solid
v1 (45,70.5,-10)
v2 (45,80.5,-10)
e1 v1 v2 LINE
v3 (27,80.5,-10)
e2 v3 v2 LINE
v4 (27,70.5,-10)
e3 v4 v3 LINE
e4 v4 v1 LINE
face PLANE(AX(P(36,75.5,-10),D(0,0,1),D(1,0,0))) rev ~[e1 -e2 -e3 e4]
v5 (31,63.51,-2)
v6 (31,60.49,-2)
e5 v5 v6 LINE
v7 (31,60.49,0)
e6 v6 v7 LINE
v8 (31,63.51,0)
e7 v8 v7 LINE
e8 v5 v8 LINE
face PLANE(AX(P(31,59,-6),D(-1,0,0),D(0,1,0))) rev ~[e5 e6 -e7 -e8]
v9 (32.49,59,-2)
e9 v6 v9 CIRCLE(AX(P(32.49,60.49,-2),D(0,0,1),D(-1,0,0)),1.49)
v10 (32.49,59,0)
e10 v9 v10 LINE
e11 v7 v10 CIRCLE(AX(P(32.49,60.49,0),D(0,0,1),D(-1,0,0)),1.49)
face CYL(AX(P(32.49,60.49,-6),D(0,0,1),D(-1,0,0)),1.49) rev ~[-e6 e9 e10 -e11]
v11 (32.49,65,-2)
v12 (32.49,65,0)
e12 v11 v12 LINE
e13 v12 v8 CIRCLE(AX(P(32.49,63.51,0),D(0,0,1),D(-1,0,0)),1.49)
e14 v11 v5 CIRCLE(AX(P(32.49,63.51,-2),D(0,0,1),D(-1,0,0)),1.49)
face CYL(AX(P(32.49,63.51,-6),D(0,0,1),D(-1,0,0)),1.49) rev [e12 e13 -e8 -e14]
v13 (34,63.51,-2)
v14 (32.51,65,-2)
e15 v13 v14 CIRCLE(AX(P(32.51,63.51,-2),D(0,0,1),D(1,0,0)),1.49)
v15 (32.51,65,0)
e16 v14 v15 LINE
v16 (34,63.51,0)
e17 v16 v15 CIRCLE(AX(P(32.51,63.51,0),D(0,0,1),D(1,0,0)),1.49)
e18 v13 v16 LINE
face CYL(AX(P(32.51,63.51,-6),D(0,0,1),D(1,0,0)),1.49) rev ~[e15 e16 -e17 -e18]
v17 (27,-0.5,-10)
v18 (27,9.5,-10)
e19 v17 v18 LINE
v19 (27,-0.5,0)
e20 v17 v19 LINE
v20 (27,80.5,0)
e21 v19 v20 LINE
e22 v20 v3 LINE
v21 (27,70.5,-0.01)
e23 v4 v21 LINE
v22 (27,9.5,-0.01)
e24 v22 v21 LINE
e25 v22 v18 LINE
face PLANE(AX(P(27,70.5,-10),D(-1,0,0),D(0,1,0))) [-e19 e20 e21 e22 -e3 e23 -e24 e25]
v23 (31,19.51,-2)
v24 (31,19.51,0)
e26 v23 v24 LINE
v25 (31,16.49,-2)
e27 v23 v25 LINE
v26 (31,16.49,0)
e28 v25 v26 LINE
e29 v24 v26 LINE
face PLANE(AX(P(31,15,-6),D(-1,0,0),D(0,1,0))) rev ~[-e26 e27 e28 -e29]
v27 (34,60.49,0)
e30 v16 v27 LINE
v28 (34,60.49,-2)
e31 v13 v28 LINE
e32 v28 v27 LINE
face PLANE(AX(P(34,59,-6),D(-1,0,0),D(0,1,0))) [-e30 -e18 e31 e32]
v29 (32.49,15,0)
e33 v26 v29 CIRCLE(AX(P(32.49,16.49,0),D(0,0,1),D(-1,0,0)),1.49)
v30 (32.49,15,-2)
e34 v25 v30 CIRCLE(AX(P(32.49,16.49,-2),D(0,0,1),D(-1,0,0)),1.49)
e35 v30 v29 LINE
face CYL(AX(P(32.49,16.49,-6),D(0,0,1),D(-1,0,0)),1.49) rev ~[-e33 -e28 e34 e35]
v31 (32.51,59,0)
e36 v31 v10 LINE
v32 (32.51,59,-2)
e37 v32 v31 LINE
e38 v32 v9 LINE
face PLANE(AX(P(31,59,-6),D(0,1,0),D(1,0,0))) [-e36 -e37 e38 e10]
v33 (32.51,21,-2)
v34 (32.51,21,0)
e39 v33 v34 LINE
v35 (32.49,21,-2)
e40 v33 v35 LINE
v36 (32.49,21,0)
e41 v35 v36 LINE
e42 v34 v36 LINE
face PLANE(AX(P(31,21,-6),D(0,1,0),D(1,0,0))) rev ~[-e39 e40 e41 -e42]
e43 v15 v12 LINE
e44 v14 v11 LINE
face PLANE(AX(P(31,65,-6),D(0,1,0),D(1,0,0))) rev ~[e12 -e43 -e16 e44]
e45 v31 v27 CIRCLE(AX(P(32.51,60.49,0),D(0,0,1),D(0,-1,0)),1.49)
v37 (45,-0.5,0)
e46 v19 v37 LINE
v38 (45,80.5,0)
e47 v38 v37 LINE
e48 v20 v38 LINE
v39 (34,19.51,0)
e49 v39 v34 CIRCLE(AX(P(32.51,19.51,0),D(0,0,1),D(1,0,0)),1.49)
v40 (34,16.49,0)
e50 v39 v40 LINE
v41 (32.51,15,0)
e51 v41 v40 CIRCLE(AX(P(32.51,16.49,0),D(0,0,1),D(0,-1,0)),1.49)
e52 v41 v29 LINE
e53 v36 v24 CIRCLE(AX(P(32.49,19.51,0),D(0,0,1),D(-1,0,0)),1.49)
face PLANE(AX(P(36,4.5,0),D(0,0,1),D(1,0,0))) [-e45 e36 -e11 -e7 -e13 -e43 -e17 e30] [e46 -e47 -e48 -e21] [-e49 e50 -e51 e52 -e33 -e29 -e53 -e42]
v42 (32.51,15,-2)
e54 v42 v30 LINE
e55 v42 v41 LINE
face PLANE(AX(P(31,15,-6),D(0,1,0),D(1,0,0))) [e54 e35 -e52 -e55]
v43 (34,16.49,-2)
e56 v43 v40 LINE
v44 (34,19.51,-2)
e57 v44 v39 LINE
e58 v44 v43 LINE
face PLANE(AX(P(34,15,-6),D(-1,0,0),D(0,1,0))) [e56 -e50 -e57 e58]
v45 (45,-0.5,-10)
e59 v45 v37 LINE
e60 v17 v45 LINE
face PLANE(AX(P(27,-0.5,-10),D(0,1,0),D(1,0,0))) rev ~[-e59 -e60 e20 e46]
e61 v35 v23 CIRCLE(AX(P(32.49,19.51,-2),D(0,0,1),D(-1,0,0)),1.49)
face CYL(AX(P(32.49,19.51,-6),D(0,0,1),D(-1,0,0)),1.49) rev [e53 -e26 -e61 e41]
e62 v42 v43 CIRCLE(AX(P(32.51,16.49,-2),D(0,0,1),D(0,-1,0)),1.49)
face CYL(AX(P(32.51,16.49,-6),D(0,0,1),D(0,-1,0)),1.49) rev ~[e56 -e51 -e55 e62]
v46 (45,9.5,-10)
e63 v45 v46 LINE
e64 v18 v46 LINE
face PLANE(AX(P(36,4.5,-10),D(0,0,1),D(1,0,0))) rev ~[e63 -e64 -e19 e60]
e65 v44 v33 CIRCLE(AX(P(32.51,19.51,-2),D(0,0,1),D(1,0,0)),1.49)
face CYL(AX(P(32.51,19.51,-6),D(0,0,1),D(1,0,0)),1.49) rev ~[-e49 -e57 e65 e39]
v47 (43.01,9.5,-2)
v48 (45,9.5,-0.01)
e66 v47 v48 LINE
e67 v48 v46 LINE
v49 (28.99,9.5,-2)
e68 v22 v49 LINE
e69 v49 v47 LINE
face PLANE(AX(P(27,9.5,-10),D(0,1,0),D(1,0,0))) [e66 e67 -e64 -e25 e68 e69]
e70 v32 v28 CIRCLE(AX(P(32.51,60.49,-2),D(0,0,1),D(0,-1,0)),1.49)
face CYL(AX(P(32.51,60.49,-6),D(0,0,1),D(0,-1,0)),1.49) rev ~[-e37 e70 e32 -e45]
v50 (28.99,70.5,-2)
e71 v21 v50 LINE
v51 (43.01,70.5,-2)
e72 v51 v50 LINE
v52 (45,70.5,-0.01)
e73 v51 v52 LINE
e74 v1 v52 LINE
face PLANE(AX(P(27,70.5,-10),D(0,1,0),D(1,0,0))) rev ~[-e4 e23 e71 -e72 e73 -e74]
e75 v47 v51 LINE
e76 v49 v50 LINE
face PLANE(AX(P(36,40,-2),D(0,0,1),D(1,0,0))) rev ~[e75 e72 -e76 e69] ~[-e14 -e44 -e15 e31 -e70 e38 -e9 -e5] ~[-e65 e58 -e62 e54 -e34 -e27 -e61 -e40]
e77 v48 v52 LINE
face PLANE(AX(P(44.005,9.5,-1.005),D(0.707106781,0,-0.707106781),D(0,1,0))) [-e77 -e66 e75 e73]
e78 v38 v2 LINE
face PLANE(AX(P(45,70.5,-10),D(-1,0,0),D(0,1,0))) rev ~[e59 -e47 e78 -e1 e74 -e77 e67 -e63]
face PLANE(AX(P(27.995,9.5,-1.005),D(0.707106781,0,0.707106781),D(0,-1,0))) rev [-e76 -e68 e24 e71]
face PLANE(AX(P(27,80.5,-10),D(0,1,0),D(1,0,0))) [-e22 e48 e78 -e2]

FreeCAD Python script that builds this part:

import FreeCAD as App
import Part
import Sketcher

V = App.Vector
Q = App.Units.Quantity


def edges_at(feature, points):
    """Names of the edges that pass closest to the given points."""
    edges = feature.Shape.Edges
    near = lambda p: min(range(len(edges)), key=lambda i: edges[i].distToShape(Part.Vertex(*p))[0])
    return sorted({f"Edge{near(p) + 1}" for p in points})

doc = App.newDocument("Part")
body = doc.addObject("PartDesign::Body", "Body")

# Sketch on XY plane
sketch1 = body.newObject("Sketcher::SketchObject", "Sketch")
sketch1.AttachmentSupport = (doc.getObject("XY_Plane"), [""])
sketch1.MapMode = "FlatFace"
sketch1.addGeometry([
    Part.LineSegment(V(0, 6, 0), V(0, 0, 0)),
    Part.LineSegment(V(0, 0, 0), V(3, 0, 0)),
    Part.LineSegment(V(3, 0, 0), V(3, 6, 0)),
    Part.LineSegment(V(3, 6, 0), V(0, 6, 0)),
], False)
sketch1.addConstraint([
    Sketcher.Constraint("Coincident", 0, 2, 1, 1),
    Sketcher.Constraint("Coincident", 1, 2, 2, 1),
    Sketcher.Constraint("Coincident", 2, 2, 3, 1),
    Sketcher.Constraint("Coincident", 3, 2, 0, 1),
    Sketcher.Constraint("Vertical", 0),
    Sketcher.Constraint("Horizontal", 1),
    Sketcher.Constraint("Vertical", 2),
    Sketcher.Constraint("Horizontal", 3),
    Sketcher.Constraint("Coincident", 0, 2, -1, 1),
    Sketcher.Constraint("DistanceX", 1, 1, 1, 2, Q("3 mm")),
    Sketcher.Constraint("DistanceY", 0, 2, 0, 1, Q("6 mm")),
])
pad1 = body.newObject("PartDesign::Pad", "Pad")
pad1.Profile = sketch1
pad1.Length = 10
doc.recompute()

fillet = body.newObject("PartDesign::Fillet", "Fillet")
fillet.Base = (pad1, edges_at(pad1, [
    (0, 0, 5),
    (0, 6, 5),
    (3, 0, 5),
    (3, 6, 5),
]))
fillet.Radius = 1.49
body2 = doc.addObject("PartDesign::Body", "Body001")
doc.recompute()

body.Placement = App.Placement(V(31, 59.5, -6), App.Rotation(V(0, 0, 1), 0))
boolean = body2.newObject("PartDesign::Boolean", "Boolean")
boolean.Type = "Fuse"
boolean.addObjects([body])
body3 = doc.addObject("PartDesign::Body", "Body002")

# Sketch on XY plane
sketch2 = body3.newObject("Sketcher::SketchObject", "Sketch001")
sketch2.AttachmentSupport = (doc.getObject("XY_Plane002"), [""])
sketch2.MapMode = "FlatFace"
sketch2.addGeometry([
    Part.LineSegment(V(0, 6, 0), V(0, 0, 0)),
    Part.LineSegment(V(0, 0, 0), V(3, 0, 0)),
    Part.LineSegment(V(3, 0, 0), V(3, 6, 0)),
    Part.LineSegment(V(3, 6, 0), V(0, 6, 0)),
], False)
sketch2.addConstraint([
    Sketcher.Constraint("Coincident", 0, 2, 1, 1),
    Sketcher.Constraint("Coincident", 1, 2, 2, 1),
    Sketcher.Constraint("Coincident", 2, 2, 3, 1),
    Sketcher.Constraint("Coincident", 3, 2, 0, 1),
    Sketcher.Constraint("Vertical", 0),
    Sketcher.Constraint("Horizontal", 1),
    Sketcher.Constraint("Vertical", 2),
    Sketcher.Constraint("Horizontal", 3),
    Sketcher.Constraint("Coincident", 0, 2, -1, 1),
    Sketcher.Constraint("DistanceX", 1, 1, 1, 2, Q("3 mm")),
    Sketcher.Constraint("DistanceY", 0, 2, 0, 1, Q("6 mm")),
])
pad2 = body3.newObject("PartDesign::Pad", "Pad001")
pad2.Profile = sketch2
pad2.Length = 10
doc.recompute()

fillet2 = body3.newObject("PartDesign::Fillet", "Fillet001")
fillet2.Base = (pad2, edges_at(pad2, [
    (0, 0, 5),
    (0, 6, 5),
    (3, 0, 5),
    (3, 6, 5),
]))
fillet2.Radius = 1.49
body4 = doc.addObject("PartDesign::Body", "Body003")
body4.AllowCompound = True
doc.recompute()

body3.Placement = App.Placement(V(31, 15.5, -6), App.Rotation(V(0, 0, 1), 0))
boolean2 = body4.newObject("PartDesign::Boolean", "Boolean001")
boolean2.Type = "Fuse"
boolean2.addObjects([body3])
doc.recompute()

boolean3 = body4.newObject("PartDesign::Boolean", "Boolean002")
boolean3.Type = "Fuse"
boolean3.addObjects([body2])
body5 = doc.addObject("PartDesign::Body", "Body004")

# Sketch on XY plane
sketch3 = body5.newObject("Sketcher::SketchObject", "Sketch002")
sketch3.AttachmentSupport = (doc.getObject("XY_Plane004"), [""])
sketch3.MapMode = "FlatFace"
sketch3.AttachmentOffset = App.Placement(V(0, 0, -2), App.Rotation())
sketch3.addGeometry([
    Part.LineSegment(V(27, 81, 0), V(27, 0, 0)),
    Part.LineSegment(V(27, 0, 0), V(45, 0, 0)),
    Part.LineSegment(V(45, 0, 0), V(45, 81, 0)),
    Part.LineSegment(V(45, 81, 0), V(27, 81, 0)),
], False)
sketch3.addConstraint([
    Sketcher.Constraint("Coincident", 0, 2, 1, 1),
    Sketcher.Constraint("Coincident", 1, 2, 2, 1),
    Sketcher.Constraint("Coincident", 2, 2, 3, 1),
    Sketcher.Constraint("Coincident", 3, 2, 0, 1),
    Sketcher.Constraint("Vertical", 0),
    Sketcher.Constraint("Horizontal", 1),
    Sketcher.Constraint("Vertical", 2),
    Sketcher.Constraint("Horizontal", 3),
    Sketcher.Constraint("PointOnObject", 0, 2, -1),
    Sketcher.Constraint("DistanceX", 1, 1, 1, 2, Q("18 mm")),
    Sketcher.Constraint("DistanceY", 0, 2, 0, 1, Q("81 mm")),
    Sketcher.Constraint("DistanceX", -1, 1, 0, 2, Q("27 mm")),
])
pad3 = body5.newObject("PartDesign::Pad", "Pad002")
pad3.Profile = sketch3
pad3.Length = 2
body6 = doc.addObject("PartDesign::Body", "Body005")

# Sketch on XY plane
sketch4 = body6.newObject("Sketcher::SketchObject", "Sketch003")
sketch4.AttachmentSupport = (doc.getObject("XY_Plane005"), [""])
sketch4.MapMode = "FlatFace"
sketch4.AttachmentOffset = App.Placement(V(0, 0, -10), App.Rotation())
sketch4.addGeometry([
    Part.LineSegment(V(27, 81, 0), V(27, 71, 0)),
    Part.LineSegment(V(27, 71, 0), V(45, 71, 0)),
    Part.LineSegment(V(45, 71, 0), V(45, 81, 0)),
    Part.LineSegment(V(45, 81, 0), V(27, 81, 0)),
], False)
sketch4.addConstraint([
    Sketcher.Constraint("Coincident", 0, 2, 1, 1),
    Sketcher.Constraint("Coincident", 1, 2, 2, 1),
    Sketcher.Constraint("Coincident", 2, 2, 3, 1),
    Sketcher.Constraint("Coincident", 3, 2, 0, 1),
    Sketcher.Constraint("Vertical", 0),
    Sketcher.Constraint("Horizontal", 1),
    Sketcher.Constraint("Vertical", 2),
    Sketcher.Constraint("Horizontal", 3),
    Sketcher.Constraint("DistanceX", 1, 1, 1, 2, Q("18 mm")),
    Sketcher.Constraint("DistanceY", 0, 2, 0, 1, Q("10 mm")),
    Sketcher.Constraint("DistanceX", -1, 1, 0, 2, Q("27 mm")),
    Sketcher.Constraint("DistanceY", -1, 1, 0, 2, Q("71 mm")),
])
pad4 = body6.newObject("PartDesign::Pad", "Pad003")
pad4.Profile = sketch4
pad4.Length = 10
body7 = doc.addObject("PartDesign::Body", "Body006")

# Sketch on XY plane
sketch5 = body7.newObject("Sketcher::SketchObject", "Sketch004")
sketch5.AttachmentSupport = (doc.getObject("XY_Plane006"), [""])
sketch5.MapMode = "FlatFace"
sketch5.AttachmentOffset = App.Placement(V(0, 0, -10), App.Rotation())
sketch5.addGeometry([
    Part.LineSegment(V(27, 10, 0), V(27, 0, 0)),
    Part.LineSegment(V(27, 0, 0), V(45, 0, 0)),
    Part.LineSegment(V(45, 0, 0), V(45, 10, 0)),
    Part.LineSegment(V(45, 10, 0), V(27, 10, 0)),
], False)
sketch5.addConstraint([
    Sketcher.Constraint("Coincident", 0, 2, 1, 1),
    Sketcher.Constraint("Coincident", 1, 2, 2, 1),
    Sketcher.Constraint("Coincident", 2, 2, 3, 1),
    Sketcher.Constraint("Coincident", 3, 2, 0, 1),
    Sketcher.Constraint("Vertical", 0),
    Sketcher.Constraint("Horizontal", 1),
    Sketcher.Constraint("Vertical", 2),
    Sketcher.Constraint("Horizontal", 3),
    Sketcher.Constraint("PointOnObject", 0, 2, -1),
    Sketcher.Constraint("DistanceX", 1, 1, 1, 2, Q("18 mm")),
    Sketcher.Constraint("DistanceY", 0, 2, 0, 1, Q("10 mm")),
    Sketcher.Constraint("DistanceX", -1, 1, 0, 2, Q("27 mm")),
])
pad5 = body7.newObject("PartDesign::Pad", "Pad004")
pad5.Profile = sketch5
pad5.Length = 10
doc.recompute()

boolean4 = body7.newObject("PartDesign::Boolean", "Boolean003")
boolean4.Type = "Fuse"
boolean4.addObjects([body5])
doc.recompute()

boolean5 = body7.newObject("PartDesign::Boolean", "Boolean004")
boolean5.Type = "Fuse"
boolean5.addObjects([body6])
doc.recompute()

boolean6 = body7.newObject("PartDesign::Boolean", "Boolean005")
boolean6.Type = "Cut"
boolean6.addObjects([body4])
doc.recompute()

chamfer = body7.newObject("PartDesign::Chamfer", "Chamfer")
chamfer.Base = (boolean6, edges_at(boolean6, [(27, 40.5, -2), (45, 40.5, -2)]))
chamfer.Size = 1.99
body8 = doc.addObject("PartDesign::Body", "Body007")
doc.recompute()

body7.Placement = App.Placement(V(0, -0.5, 0), App.Rotation(V(0, 0, 1), 0))
boolean7 = body8.newObject("PartDesign::Boolean", "Boolean006")
boolean7.Type = "Fuse"
boolean7.addObjects([body7])

doc.recompute()
